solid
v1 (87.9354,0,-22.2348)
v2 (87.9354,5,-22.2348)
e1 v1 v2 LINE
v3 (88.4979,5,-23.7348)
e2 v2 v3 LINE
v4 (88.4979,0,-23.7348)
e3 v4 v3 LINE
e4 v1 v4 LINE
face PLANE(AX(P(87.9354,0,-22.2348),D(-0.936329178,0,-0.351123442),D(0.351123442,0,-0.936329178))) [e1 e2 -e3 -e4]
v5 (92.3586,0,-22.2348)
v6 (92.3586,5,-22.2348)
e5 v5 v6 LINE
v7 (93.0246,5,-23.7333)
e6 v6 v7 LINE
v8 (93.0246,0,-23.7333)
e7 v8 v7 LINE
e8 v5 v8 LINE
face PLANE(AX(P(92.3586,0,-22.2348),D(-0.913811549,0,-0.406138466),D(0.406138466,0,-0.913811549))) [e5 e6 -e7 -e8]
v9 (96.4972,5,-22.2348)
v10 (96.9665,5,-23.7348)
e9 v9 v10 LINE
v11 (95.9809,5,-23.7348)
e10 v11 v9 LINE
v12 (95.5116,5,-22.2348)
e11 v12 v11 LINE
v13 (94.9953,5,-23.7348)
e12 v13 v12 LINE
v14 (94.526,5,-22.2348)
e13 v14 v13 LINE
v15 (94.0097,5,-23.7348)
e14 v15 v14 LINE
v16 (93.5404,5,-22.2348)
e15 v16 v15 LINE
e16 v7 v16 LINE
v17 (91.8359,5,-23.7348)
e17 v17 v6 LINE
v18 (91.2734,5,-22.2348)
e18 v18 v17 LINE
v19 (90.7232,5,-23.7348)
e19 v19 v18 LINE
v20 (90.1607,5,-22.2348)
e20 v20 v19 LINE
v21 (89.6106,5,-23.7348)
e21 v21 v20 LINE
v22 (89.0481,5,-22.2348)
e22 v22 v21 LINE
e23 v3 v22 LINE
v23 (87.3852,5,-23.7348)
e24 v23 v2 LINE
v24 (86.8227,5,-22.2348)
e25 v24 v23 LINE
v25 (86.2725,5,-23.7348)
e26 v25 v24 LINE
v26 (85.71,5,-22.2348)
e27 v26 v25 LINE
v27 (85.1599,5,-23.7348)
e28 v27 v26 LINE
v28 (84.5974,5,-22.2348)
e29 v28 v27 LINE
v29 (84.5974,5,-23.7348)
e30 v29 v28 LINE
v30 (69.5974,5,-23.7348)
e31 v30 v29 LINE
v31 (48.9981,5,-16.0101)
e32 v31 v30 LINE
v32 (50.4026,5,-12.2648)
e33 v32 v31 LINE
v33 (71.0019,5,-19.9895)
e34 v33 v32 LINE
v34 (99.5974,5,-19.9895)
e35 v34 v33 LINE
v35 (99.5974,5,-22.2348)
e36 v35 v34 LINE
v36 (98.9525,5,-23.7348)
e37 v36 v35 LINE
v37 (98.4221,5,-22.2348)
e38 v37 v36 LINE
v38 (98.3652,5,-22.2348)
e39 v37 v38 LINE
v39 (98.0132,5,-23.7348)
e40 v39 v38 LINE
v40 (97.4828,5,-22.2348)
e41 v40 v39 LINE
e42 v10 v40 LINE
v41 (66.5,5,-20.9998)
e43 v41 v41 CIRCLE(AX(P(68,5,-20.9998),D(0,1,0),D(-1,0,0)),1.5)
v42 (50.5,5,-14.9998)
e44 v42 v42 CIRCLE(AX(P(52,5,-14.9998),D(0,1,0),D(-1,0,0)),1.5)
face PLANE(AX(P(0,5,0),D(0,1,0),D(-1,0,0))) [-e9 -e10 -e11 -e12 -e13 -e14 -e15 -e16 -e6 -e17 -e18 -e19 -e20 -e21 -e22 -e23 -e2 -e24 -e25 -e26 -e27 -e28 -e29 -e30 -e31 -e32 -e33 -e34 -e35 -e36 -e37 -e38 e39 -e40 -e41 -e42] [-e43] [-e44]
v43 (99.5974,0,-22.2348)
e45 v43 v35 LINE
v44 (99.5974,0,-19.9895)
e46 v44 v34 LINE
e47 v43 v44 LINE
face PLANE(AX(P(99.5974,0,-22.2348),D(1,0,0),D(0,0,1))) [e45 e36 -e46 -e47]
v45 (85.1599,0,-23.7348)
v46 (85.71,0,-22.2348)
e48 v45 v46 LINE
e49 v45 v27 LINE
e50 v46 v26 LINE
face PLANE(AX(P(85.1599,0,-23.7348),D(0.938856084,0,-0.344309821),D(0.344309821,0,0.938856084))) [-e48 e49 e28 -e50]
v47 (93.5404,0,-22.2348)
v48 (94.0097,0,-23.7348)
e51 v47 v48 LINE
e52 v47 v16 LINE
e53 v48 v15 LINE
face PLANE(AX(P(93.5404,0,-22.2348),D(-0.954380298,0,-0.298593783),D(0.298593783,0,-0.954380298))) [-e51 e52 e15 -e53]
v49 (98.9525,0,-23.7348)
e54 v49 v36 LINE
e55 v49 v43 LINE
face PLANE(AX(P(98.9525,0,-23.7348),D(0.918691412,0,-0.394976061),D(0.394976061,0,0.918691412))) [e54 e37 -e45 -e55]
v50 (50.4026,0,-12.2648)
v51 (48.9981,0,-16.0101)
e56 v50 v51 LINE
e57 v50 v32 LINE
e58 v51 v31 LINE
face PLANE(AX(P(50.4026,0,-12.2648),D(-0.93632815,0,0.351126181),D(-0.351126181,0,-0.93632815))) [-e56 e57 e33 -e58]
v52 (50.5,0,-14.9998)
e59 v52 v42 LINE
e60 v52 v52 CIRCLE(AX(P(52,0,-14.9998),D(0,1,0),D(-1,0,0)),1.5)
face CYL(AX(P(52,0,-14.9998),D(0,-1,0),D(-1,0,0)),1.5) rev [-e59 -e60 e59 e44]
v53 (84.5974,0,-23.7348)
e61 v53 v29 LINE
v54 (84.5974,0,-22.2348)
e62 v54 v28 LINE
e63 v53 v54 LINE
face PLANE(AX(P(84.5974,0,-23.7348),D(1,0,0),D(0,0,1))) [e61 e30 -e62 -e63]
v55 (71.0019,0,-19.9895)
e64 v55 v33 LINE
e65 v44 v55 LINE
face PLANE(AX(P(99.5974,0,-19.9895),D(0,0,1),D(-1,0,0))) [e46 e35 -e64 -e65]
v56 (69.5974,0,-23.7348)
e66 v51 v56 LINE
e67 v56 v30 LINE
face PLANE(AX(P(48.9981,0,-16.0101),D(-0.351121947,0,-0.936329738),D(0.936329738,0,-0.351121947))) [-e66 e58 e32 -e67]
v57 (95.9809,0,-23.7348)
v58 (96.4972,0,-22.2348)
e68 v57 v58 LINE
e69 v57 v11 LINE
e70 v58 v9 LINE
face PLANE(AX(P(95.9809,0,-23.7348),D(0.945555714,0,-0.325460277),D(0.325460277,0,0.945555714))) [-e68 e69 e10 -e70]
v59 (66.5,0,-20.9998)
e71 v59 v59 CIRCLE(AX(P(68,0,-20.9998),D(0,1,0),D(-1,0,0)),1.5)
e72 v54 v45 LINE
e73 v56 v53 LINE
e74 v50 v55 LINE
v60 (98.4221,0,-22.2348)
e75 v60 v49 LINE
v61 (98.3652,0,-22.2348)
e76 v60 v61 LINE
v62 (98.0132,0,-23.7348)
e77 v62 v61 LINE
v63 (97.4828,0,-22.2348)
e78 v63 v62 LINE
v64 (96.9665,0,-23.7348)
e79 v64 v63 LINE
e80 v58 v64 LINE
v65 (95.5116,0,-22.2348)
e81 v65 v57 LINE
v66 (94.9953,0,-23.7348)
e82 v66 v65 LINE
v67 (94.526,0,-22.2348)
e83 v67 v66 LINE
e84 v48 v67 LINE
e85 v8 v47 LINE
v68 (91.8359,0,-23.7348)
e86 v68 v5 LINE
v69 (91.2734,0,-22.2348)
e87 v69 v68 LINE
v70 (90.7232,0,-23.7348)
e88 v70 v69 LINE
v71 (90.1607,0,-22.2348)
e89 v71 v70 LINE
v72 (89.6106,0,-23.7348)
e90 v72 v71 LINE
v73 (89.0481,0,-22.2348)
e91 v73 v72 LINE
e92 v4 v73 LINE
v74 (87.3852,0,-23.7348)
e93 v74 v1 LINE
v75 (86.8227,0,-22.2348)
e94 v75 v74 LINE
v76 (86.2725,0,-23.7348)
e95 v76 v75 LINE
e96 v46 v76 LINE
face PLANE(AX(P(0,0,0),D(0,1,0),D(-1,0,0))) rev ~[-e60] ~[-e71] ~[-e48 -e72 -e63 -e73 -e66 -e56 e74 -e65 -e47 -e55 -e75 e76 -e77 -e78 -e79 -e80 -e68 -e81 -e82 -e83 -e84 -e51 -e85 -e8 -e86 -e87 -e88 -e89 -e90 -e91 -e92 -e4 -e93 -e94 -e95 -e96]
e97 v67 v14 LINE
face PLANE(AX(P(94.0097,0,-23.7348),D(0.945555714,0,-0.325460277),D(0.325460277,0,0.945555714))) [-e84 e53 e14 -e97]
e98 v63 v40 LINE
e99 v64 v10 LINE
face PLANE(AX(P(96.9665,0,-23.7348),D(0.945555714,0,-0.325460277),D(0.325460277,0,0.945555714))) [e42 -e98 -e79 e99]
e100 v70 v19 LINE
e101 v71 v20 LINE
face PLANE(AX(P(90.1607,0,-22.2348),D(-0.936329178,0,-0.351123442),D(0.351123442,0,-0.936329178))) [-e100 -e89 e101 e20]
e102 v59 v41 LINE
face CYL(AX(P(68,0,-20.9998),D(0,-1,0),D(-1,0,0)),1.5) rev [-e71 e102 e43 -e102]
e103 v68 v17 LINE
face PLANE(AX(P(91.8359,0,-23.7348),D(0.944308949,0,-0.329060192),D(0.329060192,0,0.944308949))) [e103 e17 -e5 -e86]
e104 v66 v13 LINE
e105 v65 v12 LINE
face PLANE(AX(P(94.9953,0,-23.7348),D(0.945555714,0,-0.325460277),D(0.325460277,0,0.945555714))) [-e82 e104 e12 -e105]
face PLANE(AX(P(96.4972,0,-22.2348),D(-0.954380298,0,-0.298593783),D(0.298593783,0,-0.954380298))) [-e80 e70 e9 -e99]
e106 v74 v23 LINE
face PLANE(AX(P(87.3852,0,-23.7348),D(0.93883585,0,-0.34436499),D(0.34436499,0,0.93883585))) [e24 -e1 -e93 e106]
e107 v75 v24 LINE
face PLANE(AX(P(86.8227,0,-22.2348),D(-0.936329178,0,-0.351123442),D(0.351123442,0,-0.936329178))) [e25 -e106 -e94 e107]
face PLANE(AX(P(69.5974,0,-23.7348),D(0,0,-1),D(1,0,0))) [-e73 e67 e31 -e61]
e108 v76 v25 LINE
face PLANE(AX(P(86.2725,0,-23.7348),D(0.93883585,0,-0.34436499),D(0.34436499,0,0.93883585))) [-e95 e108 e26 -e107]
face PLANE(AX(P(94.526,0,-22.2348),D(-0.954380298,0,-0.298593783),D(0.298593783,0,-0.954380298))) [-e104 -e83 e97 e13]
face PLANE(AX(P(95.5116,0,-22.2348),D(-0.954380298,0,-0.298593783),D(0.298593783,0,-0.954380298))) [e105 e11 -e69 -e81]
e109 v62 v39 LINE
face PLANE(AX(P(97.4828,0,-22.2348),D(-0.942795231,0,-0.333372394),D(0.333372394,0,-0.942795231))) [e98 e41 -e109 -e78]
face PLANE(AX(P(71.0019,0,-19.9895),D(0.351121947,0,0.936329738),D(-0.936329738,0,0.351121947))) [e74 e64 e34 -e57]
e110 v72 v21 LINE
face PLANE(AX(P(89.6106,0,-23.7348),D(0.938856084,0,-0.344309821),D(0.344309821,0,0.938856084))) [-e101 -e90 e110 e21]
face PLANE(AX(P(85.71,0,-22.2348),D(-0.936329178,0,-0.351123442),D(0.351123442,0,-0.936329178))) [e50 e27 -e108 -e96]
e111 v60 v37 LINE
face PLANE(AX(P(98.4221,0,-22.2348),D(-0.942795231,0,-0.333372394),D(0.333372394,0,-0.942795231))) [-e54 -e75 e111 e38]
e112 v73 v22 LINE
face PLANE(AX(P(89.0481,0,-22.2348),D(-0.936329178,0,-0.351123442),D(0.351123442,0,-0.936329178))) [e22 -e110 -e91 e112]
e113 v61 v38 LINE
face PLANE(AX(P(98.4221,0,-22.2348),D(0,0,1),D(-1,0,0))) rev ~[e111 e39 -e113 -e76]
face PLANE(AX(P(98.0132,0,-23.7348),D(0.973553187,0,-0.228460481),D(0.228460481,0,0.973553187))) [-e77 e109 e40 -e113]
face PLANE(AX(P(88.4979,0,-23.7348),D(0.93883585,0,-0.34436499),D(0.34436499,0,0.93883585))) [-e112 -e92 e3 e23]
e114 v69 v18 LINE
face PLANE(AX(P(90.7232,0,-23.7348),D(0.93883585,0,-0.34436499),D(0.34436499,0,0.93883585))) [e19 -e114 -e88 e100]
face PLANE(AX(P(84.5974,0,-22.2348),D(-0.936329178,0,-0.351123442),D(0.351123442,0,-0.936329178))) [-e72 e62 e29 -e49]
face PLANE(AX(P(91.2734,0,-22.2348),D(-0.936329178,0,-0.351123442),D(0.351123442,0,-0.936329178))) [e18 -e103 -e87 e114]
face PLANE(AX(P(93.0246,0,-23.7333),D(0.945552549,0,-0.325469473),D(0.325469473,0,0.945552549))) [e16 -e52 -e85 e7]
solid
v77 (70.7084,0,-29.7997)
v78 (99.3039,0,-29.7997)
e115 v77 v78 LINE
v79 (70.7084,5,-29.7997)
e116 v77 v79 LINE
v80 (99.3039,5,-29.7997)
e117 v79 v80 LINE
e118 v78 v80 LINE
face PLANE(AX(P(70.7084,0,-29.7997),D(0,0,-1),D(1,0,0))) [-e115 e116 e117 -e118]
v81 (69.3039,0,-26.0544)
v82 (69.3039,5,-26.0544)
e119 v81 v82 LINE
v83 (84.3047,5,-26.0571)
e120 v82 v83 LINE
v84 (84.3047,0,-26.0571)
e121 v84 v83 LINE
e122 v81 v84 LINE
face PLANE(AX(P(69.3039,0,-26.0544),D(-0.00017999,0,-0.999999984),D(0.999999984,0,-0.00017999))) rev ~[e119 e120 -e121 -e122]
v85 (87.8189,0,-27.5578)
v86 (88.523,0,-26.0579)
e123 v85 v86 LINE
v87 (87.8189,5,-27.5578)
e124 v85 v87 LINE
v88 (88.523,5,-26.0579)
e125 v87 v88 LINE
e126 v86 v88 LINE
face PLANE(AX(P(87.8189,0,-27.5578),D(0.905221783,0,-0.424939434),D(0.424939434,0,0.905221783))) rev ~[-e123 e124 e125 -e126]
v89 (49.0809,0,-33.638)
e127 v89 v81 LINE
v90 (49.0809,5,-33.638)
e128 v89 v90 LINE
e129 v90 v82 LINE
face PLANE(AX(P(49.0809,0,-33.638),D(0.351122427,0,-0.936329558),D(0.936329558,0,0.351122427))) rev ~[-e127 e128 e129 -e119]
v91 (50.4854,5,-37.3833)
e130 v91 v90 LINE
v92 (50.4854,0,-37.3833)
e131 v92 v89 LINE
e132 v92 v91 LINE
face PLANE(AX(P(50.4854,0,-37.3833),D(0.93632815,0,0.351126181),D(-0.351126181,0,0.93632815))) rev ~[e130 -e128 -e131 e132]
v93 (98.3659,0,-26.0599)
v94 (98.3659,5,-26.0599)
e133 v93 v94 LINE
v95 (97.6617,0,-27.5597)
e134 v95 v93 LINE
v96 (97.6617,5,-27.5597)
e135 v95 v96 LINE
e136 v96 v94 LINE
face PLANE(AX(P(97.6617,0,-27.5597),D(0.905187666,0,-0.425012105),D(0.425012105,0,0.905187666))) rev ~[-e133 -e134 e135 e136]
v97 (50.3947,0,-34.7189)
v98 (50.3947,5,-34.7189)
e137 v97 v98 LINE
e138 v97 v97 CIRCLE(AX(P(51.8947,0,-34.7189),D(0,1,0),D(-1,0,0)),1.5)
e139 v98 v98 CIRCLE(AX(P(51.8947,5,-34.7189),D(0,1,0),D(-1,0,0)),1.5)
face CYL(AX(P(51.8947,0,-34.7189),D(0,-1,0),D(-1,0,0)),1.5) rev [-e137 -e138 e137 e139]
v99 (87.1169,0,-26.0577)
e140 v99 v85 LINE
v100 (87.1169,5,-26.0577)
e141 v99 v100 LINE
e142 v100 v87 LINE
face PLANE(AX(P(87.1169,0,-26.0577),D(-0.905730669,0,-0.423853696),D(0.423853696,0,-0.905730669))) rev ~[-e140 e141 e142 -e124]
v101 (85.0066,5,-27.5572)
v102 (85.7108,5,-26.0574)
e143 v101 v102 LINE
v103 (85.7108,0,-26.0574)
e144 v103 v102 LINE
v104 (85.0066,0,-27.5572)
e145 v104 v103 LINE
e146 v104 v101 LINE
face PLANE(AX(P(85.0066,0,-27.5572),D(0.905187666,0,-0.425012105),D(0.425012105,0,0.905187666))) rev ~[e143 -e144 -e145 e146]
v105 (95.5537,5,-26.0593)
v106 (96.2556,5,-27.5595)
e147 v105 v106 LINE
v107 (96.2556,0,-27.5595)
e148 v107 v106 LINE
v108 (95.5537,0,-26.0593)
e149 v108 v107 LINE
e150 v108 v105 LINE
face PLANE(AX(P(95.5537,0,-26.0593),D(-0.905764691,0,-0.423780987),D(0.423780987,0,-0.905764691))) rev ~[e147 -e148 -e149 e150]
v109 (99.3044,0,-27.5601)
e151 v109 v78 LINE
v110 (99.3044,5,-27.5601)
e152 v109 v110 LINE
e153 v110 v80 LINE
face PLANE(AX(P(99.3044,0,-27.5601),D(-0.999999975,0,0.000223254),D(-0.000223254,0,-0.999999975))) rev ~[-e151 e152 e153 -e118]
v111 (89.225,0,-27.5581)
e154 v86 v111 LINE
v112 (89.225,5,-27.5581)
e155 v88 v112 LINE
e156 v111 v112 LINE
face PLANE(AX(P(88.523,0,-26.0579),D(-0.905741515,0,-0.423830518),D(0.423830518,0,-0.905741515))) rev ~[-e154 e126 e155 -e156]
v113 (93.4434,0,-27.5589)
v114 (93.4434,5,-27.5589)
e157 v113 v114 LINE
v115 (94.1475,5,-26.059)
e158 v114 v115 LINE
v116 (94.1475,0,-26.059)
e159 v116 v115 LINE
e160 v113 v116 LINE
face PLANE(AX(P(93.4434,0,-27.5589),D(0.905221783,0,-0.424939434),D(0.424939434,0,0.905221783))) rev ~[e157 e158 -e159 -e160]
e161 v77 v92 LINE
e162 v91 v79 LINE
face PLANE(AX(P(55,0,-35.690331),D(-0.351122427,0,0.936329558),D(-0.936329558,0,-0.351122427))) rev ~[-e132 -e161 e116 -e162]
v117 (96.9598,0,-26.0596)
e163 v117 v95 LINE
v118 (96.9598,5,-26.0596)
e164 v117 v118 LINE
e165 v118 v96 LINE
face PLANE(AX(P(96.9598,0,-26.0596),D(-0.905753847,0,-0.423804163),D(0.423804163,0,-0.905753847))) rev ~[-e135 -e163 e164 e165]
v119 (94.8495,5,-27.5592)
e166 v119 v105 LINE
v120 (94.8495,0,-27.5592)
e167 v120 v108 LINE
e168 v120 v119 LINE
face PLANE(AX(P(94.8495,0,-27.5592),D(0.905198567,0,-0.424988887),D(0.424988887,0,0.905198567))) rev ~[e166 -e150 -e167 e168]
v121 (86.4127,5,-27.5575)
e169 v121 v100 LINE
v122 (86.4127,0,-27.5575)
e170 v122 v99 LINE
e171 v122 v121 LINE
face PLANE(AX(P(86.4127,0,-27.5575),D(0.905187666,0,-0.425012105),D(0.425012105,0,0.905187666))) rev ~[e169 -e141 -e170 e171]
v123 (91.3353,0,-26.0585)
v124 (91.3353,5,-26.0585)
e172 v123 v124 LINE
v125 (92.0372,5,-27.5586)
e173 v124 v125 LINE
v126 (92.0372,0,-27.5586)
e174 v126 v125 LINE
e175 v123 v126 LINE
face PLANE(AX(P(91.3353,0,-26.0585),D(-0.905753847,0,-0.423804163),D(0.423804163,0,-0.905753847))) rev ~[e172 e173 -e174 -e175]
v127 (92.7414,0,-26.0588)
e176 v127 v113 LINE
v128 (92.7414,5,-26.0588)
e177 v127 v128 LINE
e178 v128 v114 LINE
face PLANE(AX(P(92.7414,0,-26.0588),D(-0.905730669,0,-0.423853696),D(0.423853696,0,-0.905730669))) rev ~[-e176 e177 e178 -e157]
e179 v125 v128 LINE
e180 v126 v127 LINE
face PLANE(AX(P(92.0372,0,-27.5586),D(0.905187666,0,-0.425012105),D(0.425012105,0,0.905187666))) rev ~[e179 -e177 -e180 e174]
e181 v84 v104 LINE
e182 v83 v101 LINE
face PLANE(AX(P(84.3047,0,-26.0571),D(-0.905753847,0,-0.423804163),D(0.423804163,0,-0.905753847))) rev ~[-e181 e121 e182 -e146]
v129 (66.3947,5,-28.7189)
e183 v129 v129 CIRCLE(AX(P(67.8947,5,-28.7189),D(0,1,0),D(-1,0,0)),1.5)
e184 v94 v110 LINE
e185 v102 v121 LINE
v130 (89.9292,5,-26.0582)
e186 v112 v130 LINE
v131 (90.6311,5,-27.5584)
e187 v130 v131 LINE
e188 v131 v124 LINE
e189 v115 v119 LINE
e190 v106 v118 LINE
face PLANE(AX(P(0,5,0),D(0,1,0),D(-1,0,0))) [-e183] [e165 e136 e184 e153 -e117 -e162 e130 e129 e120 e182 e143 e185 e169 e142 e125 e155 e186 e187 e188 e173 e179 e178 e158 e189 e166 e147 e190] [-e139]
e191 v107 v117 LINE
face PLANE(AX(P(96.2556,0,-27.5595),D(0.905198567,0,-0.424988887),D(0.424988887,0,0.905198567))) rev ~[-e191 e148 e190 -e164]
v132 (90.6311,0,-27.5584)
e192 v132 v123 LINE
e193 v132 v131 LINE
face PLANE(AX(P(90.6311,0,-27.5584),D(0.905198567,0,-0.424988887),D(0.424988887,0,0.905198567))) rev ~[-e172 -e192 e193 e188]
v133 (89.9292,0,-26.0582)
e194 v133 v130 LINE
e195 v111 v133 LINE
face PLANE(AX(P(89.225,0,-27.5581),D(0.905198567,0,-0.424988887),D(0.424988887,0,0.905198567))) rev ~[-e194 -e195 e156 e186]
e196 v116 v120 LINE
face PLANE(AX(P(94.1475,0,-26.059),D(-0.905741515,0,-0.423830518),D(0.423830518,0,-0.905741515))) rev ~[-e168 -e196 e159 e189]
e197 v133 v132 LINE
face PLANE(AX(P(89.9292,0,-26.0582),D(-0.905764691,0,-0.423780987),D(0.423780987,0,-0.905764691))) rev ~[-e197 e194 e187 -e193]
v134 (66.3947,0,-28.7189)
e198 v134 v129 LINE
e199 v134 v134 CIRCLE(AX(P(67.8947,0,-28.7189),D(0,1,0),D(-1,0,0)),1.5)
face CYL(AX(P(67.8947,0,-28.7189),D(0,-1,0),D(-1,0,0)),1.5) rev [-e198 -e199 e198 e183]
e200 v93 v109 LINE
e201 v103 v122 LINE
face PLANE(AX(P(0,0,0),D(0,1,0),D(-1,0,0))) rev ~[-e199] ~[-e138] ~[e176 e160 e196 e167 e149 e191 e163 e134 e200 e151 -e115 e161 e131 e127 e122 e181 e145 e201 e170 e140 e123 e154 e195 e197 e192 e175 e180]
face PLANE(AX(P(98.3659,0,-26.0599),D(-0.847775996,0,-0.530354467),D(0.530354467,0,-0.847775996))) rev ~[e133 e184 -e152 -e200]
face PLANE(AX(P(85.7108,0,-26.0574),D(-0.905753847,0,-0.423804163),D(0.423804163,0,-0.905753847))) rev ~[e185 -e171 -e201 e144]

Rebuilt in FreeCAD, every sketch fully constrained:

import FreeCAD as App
import Part
import Sketcher

V = App.Vector
Q = App.Units.Quantity

doc = App.newDocument("Part")
body = doc.addObject("PartDesign::Body", "Body")
body.AllowCompound = True

# Sketch on XZ plane
sketch1 = body.newObject("Sketcher::SketchObject", "Sketch")
sketch1.AttachmentSupport = (doc.getObject("XZ_Plane"), [""])
sketch1.MapMode = "FlatFace"
sketch1.addGeometry(Part.LineSegment(V(50.4854, -37.3833, 0), V(49.0809, -33.638, 0)), False)
sketch1.addGeometry(Part.LineSegment(V(49.0809, -33.638, 0), V(69.3039, -26.0544, 0)), False)
sketch1.addGeometry(Part.LineSegment(V(69.3039, -26.0544, 0), V(84.3047, -26.0571, 0)), False)
sketch1.addGeometry(Part.LineSegment(V(84.3047, -26.0571, 0), V(85.0066, -27.5572, 0)), False)
sketch1.addGeometry(Part.LineSegment(V(85.0066, -27.5572, 0), V(85.7108, -26.0574, 0)), False)
sketch1.addGeometry(Part.LineSegment(V(85.7108, -26.0574, 0), V(86.4127, -27.5575, 0)), False)
sketch1.addGeometry(Part.LineSegment(V(86.4127, -27.5575, 0), V(87.1169, -26.0577, 0)), False)
sketch1.addGeometry(Part.LineSegment(V(87.1169, -26.0577, 0), V(87.8189, -27.5578, 0)), False)
sketch1.addGeometry(Part.LineSegment(V(87.8189, -27.5578, 0), V(88.523, -26.0579, 0)), False)
sketch1.addGeometry(Part.LineSegment(V(88.523, -26.0579, 0), V(89.225, -27.5581, 0)), False)
sketch1.addGeometry(Part.LineSegment(V(89.225, -27.5581, 0), V(89.9292, -26.0582, 0)), False)
sketch1.addGeometry(Part.LineSegment(V(89.9292, -26.0582, 0), V(90.6311, -27.5584, 0)), False)
sketch1.addGeometry(Part.LineSegment(V(90.6311, -27.5584, 0), V(91.3353, -26.0585, 0)), False)
sketch1.addGeometry(Part.LineSegment(V(91.3353, -26.0585, 0), V(92.0372, -27.5586, 0)), False)
sketch1.addGeometry(Part.LineSegment(V(92.0372, -27.5586, 0), V(92.7414, -26.0588, 0)), False)
sketch1.addGeometry(Part.LineSegment(V(92.7414, -26.0588, 0), V(93.4434, -27.5589, 0)), False)
sketch1.addGeometry(Part.LineSegment(V(93.4434, -27.5589, 0), V(94.1475, -26.059, 0)), False)
sketch1.addGeometry(Part.LineSegment(V(94.1475, -26.059, 0), V(94.8495, -27.5592, 0)), False)
sketch1.addGeometry(Part.LineSegment(V(94.8495, -27.5592, 0), V(95.5537, -26.0593, 0)), False)
sketch1.addGeometry(Part.LineSegment(V(95.5537, -26.0593, 0), V(96.2556, -27.5595, 0)), False)
sketch1.addGeometry(Part.LineSegment(V(96.2556, -27.5595, 0), V(96.9598, -26.0596, 0)), False)
sketch1.addGeometry(Part.LineSegment(V(96.9598, -26.0596, 0), V(97.6617, -27.5597, 0)), False)
sketch1.addGeometry(Part.LineSegment(V(97.6617, -27.5597, 0), V(98.3659, -26.0599, 0)), False)
sketch1.addGeometry(Part.LineSegment(V(98.3659, -26.0599, 0), V(99.3044, -27.5601, 0)), False)
sketch1.addGeometry(Part.LineSegment(V(99.3044, -27.5601, 0), V(99.3039, -29.7997, 0)), False)
sketch1.addGeometry(Part.LineSegment(V(99.3039, -29.7997, 0), V(70.7084, -29.7997, 0)), False)
sketch1.addGeometry(Part.LineSegment(V(70.7084, -29.7997, 0), V(50.4854, -37.3833, 0)), False)
sketch1.addGeometry(Part.Circle(V(51.8947, -34.7189, 0), V(0, 0, 1), 1.5), False)
sketch1.addGeometry(Part.Circle(V(67.8947, -28.7189, 0), V(0, 0, 1), 1.5), False)
sketch1.addGeometry(Part.LineSegment(V(69.5974, -23.7348, 0), V(48.9981, -16.0101, 0)), False)
sketch1.addGeometry(Part.LineSegment(V(48.9981, -16.0101, 0), V(50.4026, -12.2648, 0)), False)
sketch1.addGeometry(Part.LineSegment(V(50.4026, -12.2648, 0), V(71.0019, -19.9895, 0)), False)
sketch1.addGeometry(Part.LineSegment(V(71.0019, -19.9895, 0), V(99.5974, -19.9895, 0)), False)
sketch1.addGeometry(Part.LineSegment(V(99.5974, -19.9895, 0), V(99.5974, -22.2348, 0)), False)
sketch1.addGeometry(Part.LineSegment(V(99.5974, -22.2348, 0), V(98.9525, -23.7348, 0)), False)
sketch1.addGeometry(Part.LineSegment(V(98.9525, -23.7348, 0), V(98.4221, -22.2348, 0)), False)
sketch1.addGeometry(Part.LineSegment(V(98.4221, -22.2348, 0), V(98.3652, -22.2348, 0)), False)
sketch1.addGeometry(Part.LineSegment(V(98.3652, -22.2348, 0), V(98.0132, -23.7348, 0)), False)
sketch1.addGeometry(Part.LineSegment(V(98.0132, -23.7348, 0), V(97.4828, -22.2348, 0)), False)
sketch1.addGeometry(Part.LineSegment(V(97.4828, -22.2348, 0), V(96.9665, -23.7348, 0)), False)
sketch1.addGeometry(Part.LineSegment(V(96.9665, -23.7348, 0), V(96.4972, -22.2348, 0)), False)
sketch1.addGeometry(Part.LineSegment(V(96.4972, -22.2348, 0), V(95.9809, -23.7348, 0)), False)
sketch1.addGeometry(Part.LineSegment(V(95.9809, -23.7348, 0), V(95.5116, -22.2348, 0)), False)
sketch1.addGeometry(Part.LineSegment(V(95.5116, -22.2348, 0), V(94.9953, -23.7348, 0)), False)
sketch1.addGeometry(Part.LineSegment(V(94.9953, -23.7348, 0), V(94.526, -22.2348, 0)), False)
sketch1.addGeometry(Part.LineSegment(V(94.526, -22.2348, 0), V(94.0097, -23.7348, 0)), False)
sketch1.addGeometry(Part.LineSegment(V(94.0097, -23.7348, 0), V(93.5404, -22.2348, 0)), False)
sketch1.addGeometry(Part.LineSegment(V(93.5404, -22.2348, 0), V(93.0246, -23.7333, 0)), False)
sketch1.addGeometry(Part.LineSegment(V(93.0246, -23.7333, 0), V(92.3586, -22.2348, 0)), False)
sketch1.addGeometry(Part.LineSegment(V(92.3586, -22.2348, 0), V(91.8359, -23.7348, 0)), False)
sketch1.addGeometry(Part.LineSegment(V(91.8359, -23.7348, 0), V(91.2734, -22.2348, 0)), False)
sketch1.addGeometry(Part.LineSegment(V(91.2734, -22.2348, 0), V(90.7232, -23.7348, 0)), False)
sketch1.addGeometry(Part.LineSegment(V(90.7232, -23.7348, 0), V(90.1607, -22.2348, 0)), False)
sketch1.addGeometry(Part.LineSegment(V(90.1607, -22.2348, 0), V(89.6106, -23.7348, 0)), False)
sketch1.addGeometry(Part.LineSegment(V(89.6106, -23.7348, 0), V(89.0481, -22.2348, 0)), False)
sketch1.addGeometry(Part.LineSegment(V(89.0481, -22.2348, 0), V(88.4979, -23.7348, 0)), False)
sketch1.addGeometry(Part.LineSegment(V(88.4979, -23.7348, 0), V(87.9354, -22.2348, 0)), False)
sketch1.addGeometry(Part.LineSegment(V(87.9354, -22.2348, 0), V(87.3852, -23.7348, 0)), False)
sketch1.addGeometry(Part.LineSegment(V(87.3852, -23.7348, 0), V(86.8227, -22.2348, 0)), False)
sketch1.addGeometry(Part.LineSegment(V(86.8227, -22.2348, 0), V(86.2725, -23.7348, 0)), False)
sketch1.addGeometry(Part.LineSegment(V(86.2725, -23.7348, 0), V(85.71, -22.2348, 0)), False)
sketch1.addGeometry(Part.LineSegment(V(85.71, -22.2348, 0), V(85.1599, -23.7348, 0)), False)
sketch1.addGeometry(Part.LineSegment(V(85.1599, -23.7348, 0), V(84.5974, -22.2348, 0)), False)
sketch1.addGeometry(Part.LineSegment(V(84.5974, -22.2348, 0), V(84.5974, -23.7348, 0)), False)
sketch1.addGeometry(Part.LineSegment(V(84.5974, -23.7348, 0), V(69.5974, -23.7348, 0)), False)
sketch1.addGeometry(Part.Circle(V(68, -20.9998, 0), V(0, 0, 1), 1.5), False)
sketch1.addGeometry(Part.Circle(V(52, -14.9998, 0), V(0, 0, 1), 1.5), False)
sketch1.addConstraint(Sketcher.Constraint("Coincident", 0, 2, 1, 1))
sketch1.addConstraint(Sketcher.Constraint("Coincident", 1, 2, 2, 1))
sketch1.addConstraint(Sketcher.Constraint("Coincident", 2, 2, 3, 1))
sketch1.addConstraint(Sketcher.Constraint("Coincident", 3, 2, 4, 1))
sketch1.addConstraint(Sketcher.Constraint("Coincident", 4, 2, 5, 1))
sketch1.addConstraint(Sketcher.Constraint("Coincident", 5, 2, 6, 1))
sketch1.addConstraint(Sketcher.Constraint("Coincident", 6, 2, 7, 1))
sketch1.addConstraint(Sketcher.Constraint("Coincident", 7, 2, 8, 1))
sketch1.addConstraint(Sketcher.Constraint("Coincident", 8, 2, 9, 1))
sketch1.addConstraint(Sketcher.Constraint("Coincident", 9, 2, 10, 1))
sketch1.addConstraint(Sketcher.Constraint("Coincident", 10, 2, 11, 1))
sketch1.addConstraint(Sketcher.Constraint("Coincident", 11, 2, 12, 1))
sketch1.addConstraint(Sketcher.Constraint("Coincident", 12, 2, 13, 1))
sketch1.addConstraint(Sketcher.Constraint("Coincident", 13, 2, 14, 1))
sketch1.addConstraint(Sketcher.Constraint("Coincident", 14, 2, 15, 1))
sketch1.addConstraint(Sketcher.Constraint("Coincident", 15, 2, 16, 1))
sketch1.addConstraint(Sketcher.Constraint("Coincident", 16, 2, 17, 1))
sketch1.addConstraint(Sketcher.Constraint("Coincident", 17, 2, 18, 1))
sketch1.addConstraint(Sketcher.Constraint("Coincident", 18, 2, 19, 1))
sketch1.addConstraint(Sketcher.Constraint("Coincident", 19, 2, 20, 1))
sketch1.addConstraint(Sketcher.Constraint("Coincident", 20, 2, 21, 1))
sketch1.addConstraint(Sketcher.Constraint("Coincident", 21, 2, 22, 1))
sketch1.addConstraint(Sketcher.Constraint("Coincident", 22, 2, 23, 1))
sketch1.addConstraint(Sketcher.Constraint("Coincident", 23, 2, 24, 1))
sketch1.addConstraint(Sketcher.Constraint("Coincident", 24, 2, 25, 1))
sketch1.addConstraint(Sketcher.Constraint("Coincident", 25, 2, 26, 1))
sketch1.addConstraint(Sketcher.Constraint("Coincident", 26, 2, 0, 1))
sketch1.addConstraint(Sketcher.Constraint("Coincident", 29, 2, 30, 1))
sketch1.addConstraint(Sketcher.Constraint("Coincident", 30, 2, 31, 1))
sketch1.addConstraint(Sketcher.Constraint("Coincident", 31, 2, 32, 1))
sketch1.addConstraint(Sketcher.Constraint("Coincident", 32, 2, 33, 1))
sketch1.addConstraint(Sketcher.Constraint("Coincident", 33, 2, 34, 1))
sketch1.addConstraint(Sketcher.Constraint("Coincident", 34, 2, 35, 1))
sketch1.addConstraint(Sketcher.Constraint("Coincident", 35, 2, 36, 1))
sketch1.addConstraint(Sketcher.Constraint("Coincident", 36, 2, 37, 1))
sketch1.addConstraint(Sketcher.Constraint("Coincident", 37, 2, 38, 1))
sketch1.addConstraint(Sketcher.Constraint("Coincident", 38, 2, 39, 1))
sketch1.addConstraint(Sketcher.Constraint("Coincident", 39, 2, 40, 1))
sketch1.addConstraint(Sketcher.Constraint("Coincident", 40, 2, 41, 1))
sketch1.addConstraint(Sketcher.Constraint("Coincident", 41, 2, 42, 1))
sketch1.addConstraint(Sketcher.Constraint("Coincident", 42, 2, 43, 1))
sketch1.addConstraint(Sketcher.Constraint("Coincident", 43, 2, 44, 1))
sketch1.addConstraint(Sketcher.Constraint("Coincident", 44, 2, 45, 1))
sketch1.addConstraint(Sketcher.Constraint("Coincident", 45, 2, 46, 1))
sketch1.addConstraint(Sketcher.Constraint("Coincident", 46, 2, 47, 1))
sketch1.addConstraint(Sketcher.Constraint("Coincident", 47, 2, 48, 1))
sketch1.addConstraint(Sketcher.Constraint("Coincident", 48, 2, 49, 1))
sketch1.addConstraint(Sketcher.Constraint("Coincident", 49, 2, 50, 1))
sketch1.addConstraint(Sketcher.Constraint("Coincident", 50, 2, 51, 1))
sketch1.addConstraint(Sketcher.Constraint("Coincident", 51, 2, 52, 1))
sketch1.addConstraint(Sketcher.Constraint("Coincident", 52, 2, 53, 1))
sketch1.addConstraint(Sketcher.Constraint("Coincident", 53, 2, 54, 1))
sketch1.addConstraint(Sketcher.Constraint("Coincident", 54, 2, 55, 1))
sketch1.addConstraint(Sketcher.Constraint("Coincident", 55, 2, 56, 1))
sketch1.addConstraint(Sketcher.Constraint("Coincident", 56, 2, 57, 1))
sketch1.addConstraint(Sketcher.Constraint("Coincident", 57, 2, 58, 1))
sketch1.addConstraint(Sketcher.Constraint("Coincident", 58, 2, 59, 1))
sketch1.addConstraint(Sketcher.Constraint("Coincident", 59, 2, 60, 1))
sketch1.addConstraint(Sketcher.Constraint("Coincident", 60, 2, 61, 1))
sketch1.addConstraint(Sketcher.Constraint("Coincident", 61, 2, 62, 1))
sketch1.addConstraint(Sketcher.Constraint("Coincident", 62, 2, 63, 1))
sketch1.addConstraint(Sketcher.Constraint("Coincident", 63, 2, 64, 1))
sketch1.addConstraint(Sketcher.Constraint("Coincident", 64, 2, 29, 1))
sketch1.addConstraint(Sketcher.Constraint("Horizontal", 25))
sketch1.addConstraint(Sketcher.Constraint("Horizontal", 32))
sketch1.addConstraint(Sketcher.Constraint("Vertical", 33))
sketch1.addConstraint(Sketcher.Constraint("Horizontal", 36))
sketch1.addConstraint(Sketcher.Constraint("Vertical", 63))
sketch1.addConstraint(Sketcher.Constraint("Horizontal", 64))
sketch1.addConstraint(Sketcher.Constraint("Diameter", 27, Q("3 mm")))
sketch1.addConstraint(Sketcher.Constraint("Diameter", 28, Q("3 mm")))
sketch1.addConstraint(Sketcher.Constraint("Diameter", 65, Q("3 mm")))
sketch1.addConstraint(Sketcher.Constraint("Diameter", 66, Q("3 mm")))
sketch1.addConstraint(Sketcher.Constraint("Distance", 0, Q("4 mm")))
sketch1.addConstraint(Sketcher.Constraint("Distance", 29, Q("22 mm")))
sketch1.addConstraint(Sketcher.Constraint("Distance", 30, Q("4 mm")))
sketch1.addConstraint(Sketcher.Constraint("Distance", 31, Q("22 mm")))
sketch1.addConstraint(Sketcher.Constraint("DistanceY", 63, 2, 63, 1, Q("1.5 mm")))
sketch1.addConstraint(Sketcher.Constraint("DistanceX", 64, 2, 64, 1, Q("15 mm")))
sketch1.addConstraint(Sketcher.Constraint("DistanceX", -1, 1, 65, 3, Q("68 mm")))
sketch1.addConstraint(Sketcher.Constraint("DistanceX", -1, 1, 66, 3, Q("52 mm")))
sketch1.addConstraint(Sketcher.Constraint("DistanceX", 36, 2, 36, 1, Q("0.057 mm")))
sketch1.addConstraint(Sketcher.Constraint("DistanceY", 22, 2, -1, 1, Q("26.06 mm")))
sketch1.addConstraint(Sketcher.Constraint("DistanceY", 23, 2, -1, 1, Q("27.56 mm")))
sketch1.addConstraint(Sketcher.Constraint("DistanceY", 29, 2, -1, 1, Q("16.01 mm")))
sketch1.addConstraint(Sketcher.Constraint("DistanceX", -1, 1, 60, 2, Q("85.71 mm")))
sketch1.addConstraint(Sketcher.Constraint("DistanceX", -1, 1, 61, 2, Q("85.16 mm")))
sketch1.addConstraint(Sketcher.Constraint("Distance", 4, Q("1.657 mm")))
sketch1.addConstraint(Sketcher.Constraint("Distance", 6, Q("1.657 mm")))
sketch1.addConstraint(Sketcher.Constraint("Distance", 8, Q("1.657 mm")))
sketch1.addConstraint(Sketcher.Constraint("Distance", 10, Q("1.657 mm")))
sketch1.addConstraint(Sketcher.Constraint("Distance", 12, Q("1.657 mm")))
sketch1.addConstraint(Sketcher.Constraint("Distance", 14, Q("1.657 mm")))
sketch1.addConstraint(Sketcher.Constraint("Distance", 16, Q("1.657 mm")))
sketch1.addConstraint(Sketcher.Constraint("Distance", 18, Q("1.657 mm")))
sketch1.addConstraint(Sketcher.Constraint("Distance", 20, Q("1.657 mm")))
sketch1.addConstraint(Sketcher.Constraint("Distance", 22, Q("1.657 mm")))
sketch1.addConstraint(Sketcher.Constraint("Distance", 35, Q("1.591 mm")))
sketch1.addConstraint(Sketcher.Constraint("Distance", 38, Q("1.591 mm")))
sketch1.addConstraint(Sketcher.Constraint("Distance", 50, Q("1.602 mm")))
sketch1.addConstraint(Sketcher.Constraint("Distance", 52, Q("1.602 mm")))
sketch1.addConstraint(Sketcher.Constraint("Distance", 54, Q("1.602 mm")))
sketch1.addConstraint(Sketcher.Constraint("Distance", 56, Q("1.602 mm")))
sketch1.addConstraint(Sketcher.Constraint("Distance", 58, Q("1.602 mm")))
sketch1.addConstraint(Sketcher.Constraint("Distance", 60, Q("1.602 mm")))
sketch1.addConstraint(Sketcher.Constraint("Distance", 62, Q("1.602 mm")))
sketch1.addConstraint(Sketcher.Constraint("DistanceX", 25, 2, 25, 1, Q("28.5955 mm")))
sketch1.addConstraint(Sketcher.Constraint("DistanceX", 32, 1, 32, 2, Q("28.5955 mm")))
sketch1.addConstraint(Sketcher.Constraint("DistanceY", 33, 2, 33, 1, Q("2.2453 mm")))
sketch1.addConstraint(Sketcher.Constraint("DistanceY", 27, 3, -1, 1, Q("34.719 mm")))
sketch1.addConstraint(Sketcher.Constraint("DistanceY", 28, 3, -1, 1, Q("28.719 mm")))
sketch1.addConstraint(Sketcher.Constraint("DistanceX", -1, 1, 0, 2, Q("49.081 mm")))
sketch1.addConstraint(Sketcher.Constraint("DistanceY", 0, 2, -1, 1, Q("33.638 mm")))
sketch1.addConstraint(Sketcher.Constraint("DistanceX", -1, 1, 1, 2, Q("69.304 mm")))
sketch1.addConstraint(Sketcher.Constraint("DistanceY", 2, 2, -1, 1, Q("26.057 mm")))
sketch1.addConstraint(Sketcher.Constraint("DistanceX", -1, 1, 6, 2, Q("87.117 mm")))
sketch1.addConstraint(Sketcher.Constraint("DistanceX", -1, 1, 7, 2, Q("87.819 mm")))
sketch1.addConstraint(Sketcher.Constraint("DistanceX", -1, 1, 8, 2, Q("88.523 mm")))
sketch1.addConstraint(Sketcher.Constraint("DistanceY", 8, 2, -1, 1, Q("26.058 mm")))
sketch1.addConstraint(Sketcher.Constraint("DistanceX", -1, 1, 9, 2, Q("89.225 mm")))
sketch1.addConstraint(Sketcher.Constraint("DistanceY", 9, 2, -1, 1, Q("27.558 mm")))
sketch1.addConstraint(Sketcher.Constraint("DistanceX", -1, 1, 11, 2, Q("90.631 mm")))
sketch1.addConstraint(Sketcher.Constraint("DistanceY", 15, 2, -1, 1, Q("27.559 mm")))
sketch1.addConstraint(Sketcher.Constraint("DistanceY", 16, 2, -1, 1, Q("26.059 mm")))
sketch1.addConstraint(Sketcher.Constraint("DistanceX", -1, 1, 22, 2, Q("98.366 mm")))
sketch1.addConstraint(Sketcher.Constraint("DistanceX", -1, 1, 24, 2, Q("99.304 mm")))
sketch1.addConstraint(Sketcher.Constraint("DistanceX", -1, 1, 29, 2, Q("48.998 mm")))
sketch1.addConstraint(Sketcher.Constraint("DistanceX", -1, 1, 31, 2, Q("71.002 mm")))
sketch1.addConstraint(Sketcher.Constraint("DistanceX", -1, 1, 35, 2, Q("98.422 mm")))
sketch1.addConstraint(Sketcher.Constraint("DistanceX", -1, 1, 41, 2, Q("95.981 mm")))
sketch1.addConstraint(Sketcher.Constraint("DistanceX", -1, 1, 44, 2, Q("94.526 mm")))
sketch1.addConstraint(Sketcher.Constraint("DistanceX", -1, 1, 49, 2, Q("91.836 mm")))
sketch1.addConstraint(Sketcher.Constraint("DistanceX", -1, 1, 54, 2, Q("89.048 mm")))
sketch1.addConstraint(Sketcher.Constraint("DistanceX", -1, 1, 55, 2, Q("88.498 mm")))
sketch1.addConstraint(Sketcher.Constraint("Distance", 1, Q("21.5982 mm")))
sketch1.addConstraint(Sketcher.Constraint("Distance", 2, Q("15.0008 mm")))
sketch1.addConstraint(Sketcher.Constraint("Distance", 3, Q("1.6562 mm")))
sketch1.addConstraint(Sketcher.Constraint("Distance", 5, Q("1.6562 mm")))
sketch1.addConstraint(Sketcher.Constraint("Distance", 7, Q("1.6562 mm")))
sketch1.addConstraint(Sketcher.Constraint("Distance", 11, Q("1.6563 mm")))
sketch1.addConstraint(Sketcher.Constraint("Distance", 13, Q("1.6562 mm")))
sketch1.addConstraint(Sketcher.Constraint("Distance", 15, Q("1.6562 mm")))
sketch1.addConstraint(Sketcher.Constraint("Distance", 17, Q("1.6563 mm")))
sketch1.addConstraint(Sketcher.Constraint("Distance", 19, Q("1.6563 mm")))
sketch1.addConstraint(Sketcher.Constraint("Distance", 21, Q("1.6562 mm")))
sketch1.addConstraint(Sketcher.Constraint("Distance", 23, Q("1.7696 mm")))
sketch1.addConstraint(Sketcher.Constraint("Distance", 24, Q("2.2396 mm")))
sketch1.addConstraint(Sketcher.Constraint("Distance", 26, Q("21.5982 mm")))
sketch1.addConstraint(Sketcher.Constraint("Distance", 34, Q("1.6328 mm")))
sketch1.addConstraint(Sketcher.Constraint("Distance", 37, Q("1.5407 mm")))
sketch1.addConstraint(Sketcher.Constraint("Distance", 39, Q("1.5864 mm")))
sketch1.addConstraint(Sketcher.Constraint("Distance", 40, Q("1.5717 mm")))
sketch1.addConstraint(Sketcher.Constraint("Distance", 41, Q("1.5864 mm")))
sketch1.addConstraint(Sketcher.Constraint("Distance", 42, Q("1.5717 mm")))
sketch1.addConstraint(Sketcher.Constraint("Distance", 43, Q("1.5864 mm")))
sketch1.addConstraint(Sketcher.Constraint("Distance", 44, Q("1.5717 mm")))
sketch1.addConstraint(Sketcher.Constraint("Distance", 45, Q("1.5864 mm")))
sketch1.addConstraint(Sketcher.Constraint("Distance", 46, Q("1.5717 mm")))
sketch1.addConstraint(Sketcher.Constraint("Distance", 47, Q("1.5848 mm")))
sketch1.addConstraint(Sketcher.Constraint("Distance", 48, Q("1.6398 mm")))
sketch1.addConstraint(Sketcher.Constraint("Distance", 49, Q("1.5885 mm")))
sketch1.addConstraint(Sketcher.Constraint("Distance", 51, Q("1.5977 mm")))
sketch1.addConstraint(Sketcher.Constraint("Distance", 53, Q("1.5977 mm")))
sketch1.addConstraint(Sketcher.Constraint("Distance", 55, Q("1.5977 mm")))
sketch1.addConstraint(Sketcher.Constraint("Distance", 57, Q("1.5977 mm")))
sketch1.addConstraint(Sketcher.Constraint("Distance", 59, Q("1.5977 mm")))
sketch1.addConstraint(Sketcher.Constraint("Distance", 61, Q("1.5977 mm")))
sketch1.addConstraint(Sketcher.Constraint("DistanceX", -1, 1, 27, 3, Q("51.8947 mm")))
sketch1.addConstraint(Sketcher.Constraint("DistanceX", -1, 1, 28, 3, Q("67.8947 mm")))
sketch1.addConstraint(Sketcher.Constraint("DistanceY", 65, 3, -1, 1, Q("20.9998 mm")))
sketch1.addConstraint(Sketcher.Constraint("DistanceY", 66, 3, -1, 1, Q("14.9998 mm")))
sketch1.addConstraint(Sketcher.Constraint("DistanceX", -1, 1, 3, 2, Q("85.0066 mm")))
sketch1.addConstraint(Sketcher.Constraint("DistanceX", -1, 1, 4, 2, Q("85.7108 mm")))
sketch1.addConstraint(Sketcher.Constraint("DistanceX", -1, 1, 10, 2, Q("89.9292 mm")))
sketch1.addConstraint(Sketcher.Constraint("DistanceX", -1, 1, 12, 2, Q("91.3353 mm")))
sketch1.addConstraint(Sketcher.Constraint("DistanceX", -1, 1, 13, 2, Q("92.0372 mm")))
sketch1.addConstraint(Sketcher.Constraint("DistanceX", -1, 1, 14, 2, Q("92.7414 mm")))
sketch1.addConstraint(Sketcher.Constraint("DistanceX", -1, 1, 17, 2, Q("94.8495 mm")))
sketch1.addConstraint(Sketcher.Constraint("DistanceX", -1, 1, 18, 2, Q("95.5537 mm")))
sketch1.addConstraint(Sketcher.Constraint("DistanceX", -1, 1, 19, 2, Q("96.2556 mm")))
sketch1.addConstraint(Sketcher.Constraint("DistanceX", -1, 1, 20, 2, Q("96.9598 mm")))
sketch1.addConstraint(Sketcher.Constraint("DistanceX", -1, 1, 30, 2, Q("50.4026 mm")))
sketch1.addConstraint(Sketcher.Constraint("DistanceX", -1, 1, 34, 2, Q("98.9525 mm")))
sketch1.addConstraint(Sketcher.Constraint("DistanceX", -1, 1, 37, 2, Q("98.0132 mm")))
sketch1.addConstraint(Sketcher.Constraint("DistanceX", -1, 1, 38, 2, Q("97.4828 mm")))
sketch1.addConstraint(Sketcher.Constraint("DistanceX", -1, 1, 39, 2, Q("96.9665 mm")))
sketch1.addConstraint(Sketcher.Constraint("DistanceX", -1, 1, 40, 2, Q("96.4972 mm")))
sketch1.addConstraint(Sketcher.Constraint("DistanceX", -1, 1, 42, 2, Q("95.5116 mm")))
sketch1.addConstraint(Sketcher.Constraint("DistanceX", -1, 1, 43, 2, Q("94.9953 mm")))
sketch1.addConstraint(Sketcher.Constraint("DistanceX", -1, 1, 45, 2, Q("94.0097 mm")))
sketch1.addConstraint(Sketcher.Constraint("DistanceX", -1, 1, 46, 2, Q("93.5404 mm")))
sketch1.addConstraint(Sketcher.Constraint("DistanceX", -1, 1, 47, 2, Q("93.0246 mm")))
sketch1.addConstraint(Sketcher.Constraint("DistanceX", -1, 1, 48, 2, Q("92.3586 mm")))
sketch1.addConstraint(Sketcher.Constraint("DistanceX", -1, 1, 50, 2, Q("91.2734 mm")))
sketch1.addConstraint(Sketcher.Constraint("DistanceX", -1, 1, 51, 2, Q("90.7232 mm")))
sketch1.addConstraint(Sketcher.Constraint("DistanceX", -1, 1, 52, 2, Q("90.1607 mm")))
sketch1.addConstraint(Sketcher.Constraint("DistanceX", -1, 1, 53, 2, Q("89.6106 mm")))
sketch1.addConstraint(Sketcher.Constraint("DistanceX", -1, 1, 56, 2, Q("87.9354 mm")))
sketch1.addConstraint(Sketcher.Constraint("DistanceX", -1, 1, 57, 2, Q("87.3852 mm")))
sketch1.addConstraint(Sketcher.Constraint("DistanceX", -1, 1, 58, 2, Q("86.8227 mm")))
sketch1.addConstraint(Sketcher.Constraint("DistanceX", -1, 1, 59, 2, Q("86.2725 mm")))
pad1 = body.newObject("PartDesign::Pad", "Pad")
pad1.Profile = sketch1
pad1.Length = 5
pad1.Reversed = True

doc.recompute()
